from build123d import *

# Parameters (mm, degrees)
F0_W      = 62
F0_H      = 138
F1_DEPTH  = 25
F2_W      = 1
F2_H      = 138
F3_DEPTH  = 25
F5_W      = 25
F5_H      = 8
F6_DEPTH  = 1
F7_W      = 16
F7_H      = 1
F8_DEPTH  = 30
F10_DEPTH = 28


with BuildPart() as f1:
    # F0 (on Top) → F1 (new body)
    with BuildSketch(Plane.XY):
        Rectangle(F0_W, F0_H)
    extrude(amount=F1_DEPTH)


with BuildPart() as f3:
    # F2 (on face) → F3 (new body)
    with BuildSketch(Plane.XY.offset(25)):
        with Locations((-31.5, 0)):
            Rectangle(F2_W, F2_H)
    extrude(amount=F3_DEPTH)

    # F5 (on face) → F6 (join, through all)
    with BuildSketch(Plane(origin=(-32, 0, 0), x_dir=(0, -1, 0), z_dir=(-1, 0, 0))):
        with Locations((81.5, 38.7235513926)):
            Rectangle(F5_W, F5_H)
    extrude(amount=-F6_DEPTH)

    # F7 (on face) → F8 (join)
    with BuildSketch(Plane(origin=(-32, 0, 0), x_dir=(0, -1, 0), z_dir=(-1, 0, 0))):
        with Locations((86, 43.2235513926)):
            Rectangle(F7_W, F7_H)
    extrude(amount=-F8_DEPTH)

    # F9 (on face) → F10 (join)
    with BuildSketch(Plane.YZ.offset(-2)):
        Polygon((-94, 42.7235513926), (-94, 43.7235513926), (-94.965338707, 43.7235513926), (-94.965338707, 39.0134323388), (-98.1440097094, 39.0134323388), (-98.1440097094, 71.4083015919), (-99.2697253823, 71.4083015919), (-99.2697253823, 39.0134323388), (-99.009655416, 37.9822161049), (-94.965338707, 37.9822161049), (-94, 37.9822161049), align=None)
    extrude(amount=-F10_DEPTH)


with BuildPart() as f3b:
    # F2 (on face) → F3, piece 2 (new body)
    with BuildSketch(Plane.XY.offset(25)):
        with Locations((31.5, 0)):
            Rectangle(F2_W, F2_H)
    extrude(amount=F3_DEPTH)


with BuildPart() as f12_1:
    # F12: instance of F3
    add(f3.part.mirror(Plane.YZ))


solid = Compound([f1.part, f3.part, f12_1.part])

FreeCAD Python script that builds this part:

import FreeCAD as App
import Part
import Sketcher
from FreeCAD import Vector


def add_polygon(sketch, points):
    """Adds a closed chain of lines whose ends are joined by coincident constraints."""
    first, n = sketch.GeometryCount, len(points)
    for a, b in zip(points, points[1:] + points[:1]):
        sketch.addGeometry(Part.LineSegment(App.Vector(*a, 0), App.Vector(*b, 0)), False)
    for i in range(n):
        sketch.addConstraint(Sketcher.Constraint("Coincident", first + i, 2, first + (i + 1) % n, 1))

doc = App.newDocument("Part")
body = doc.addObject("PartDesign::Body", "Body")

# Sketch on XY plane
sketch1 = doc.addObject("Sketcher::SketchObject", "Sketch")
body.addObject(sketch1)
sketch1.AttachmentSupport = (doc.XY_Plane, [""])
sketch1.MapMode = "FlatFace"
add_polygon(sketch1, [(-31, 69), (-31, -69), (31, -69), (31, 69)])  # lines 0-3
sketch1.addConstraint([
    Sketcher.Constraint("Vertical", 0),
    Sketcher.Constraint("Horizontal", 1),
    Sketcher.Constraint("Vertical", 2),
    Sketcher.Constraint("Horizontal", 3),
    Sketcher.Constraint("Symmetric", 0, 2, 2, 2, -1, 1),
    Sketcher.Constraint("DistanceX", 1, 1, 1, 2, 62.0),
    Sketcher.Constraint("DistanceY", 0, 2, 0, 1, 138.0),
])
pad1 = doc.addObject("PartDesign::Pad", "Pad")
body.addObject(pad1)
pad1.Profile = sketch1
pad1.Length = 25
body2 = doc.addObject("PartDesign::Body", "Body001")

# Sketch on XY plane
sketch2 = doc.addObject("Sketcher::SketchObject", "Sketch001")
body2.addObject(sketch2)
sketch2.AttachmentSupport = (doc.getObject("XY_Plane001"), [""])
sketch2.MapMode = "FlatFace"
sketch2.AttachmentOffset = App.Placement(Vector(0, 0, 25), App.Rotation())
add_polygon(sketch2, [(-32, 69), (-32, -69), (-31, -69), (-31, 69)])  # lines 0-3
sketch2.addConstraint([
    Sketcher.Constraint("Vertical", 0),
    Sketcher.Constraint("Horizontal", 1),
    Sketcher.Constraint("Vertical", 2),
    Sketcher.Constraint("Horizontal", 3),
    Sketcher.Constraint("DistanceX", 1, 1, 1, 2, 1.0),
    Sketcher.Constraint("DistanceY", 0, 2, 0, 1, 138.0),
    Sketcher.Constraint("DistanceX", 0, 2, -1, 1, 32.0),
    Sketcher.Constraint("DistanceY", 0, 2, -1, 1, 69.0),
])
pad2 = doc.addObject("PartDesign::Pad", "Pad001")
body2.addObject(pad2)
pad2.Profile = sketch2
pad2.Length = 25

# Sketch on YZ plane
sketch3 = doc.addObject("Sketcher::SketchObject", "Sketch002")
body2.addObject(sketch3)
sketch3.AttachmentSupport = (doc.getObject("YZ_Plane001"), [""])
sketch3.MapMode = "FlatFace"
sketch3.AttachmentOffset = App.Placement(Vector(0, 0, -32), App.Rotation())
add_polygon(sketch3, [(-69, 43), (-69, 35), (-94, 35), (-94, 43)])  # lines 0-3
sketch3.addConstraint([
    Sketcher.Constraint("Vertical", 0),
    Sketcher.Constraint("Horizontal", 1),
    Sketcher.Constraint("Vertical", 2),
    Sketcher.Constraint("Horizontal", 3),
    Sketcher.Constraint("DistanceX", 1, 2, 1, 1, 25.0),
    Sketcher.Constraint("DistanceY", 0, 2, 0, 1, 8.0),
    Sketcher.Constraint("DistanceX", 0, 2, -1, 1, 69.0),
    Sketcher.Constraint("DistanceY", -1, 1, 0, 2, 34.723551),
])
pad3 = doc.addObject("PartDesign::Pad", "Pad002")
body2.addObject(pad3)
pad3.Profile = sketch3
pad3.Length = 1

# Sketch on YZ plane
sketch4 = doc.addObject("Sketcher::SketchObject", "Sketch003")
body2.addObject(sketch4)
sketch4.AttachmentSupport = (doc.getObject("YZ_Plane001"), [""])
sketch4.MapMode = "FlatFace"
sketch4.AttachmentOffset = App.Placement(Vector(0, 0, -32), App.Rotation())
add_polygon(sketch4, [(-78, 43.7), (-78, 42.7), (-94, 42.7), (-94, 43.7)])  # lines 0-3
sketch4.addConstraint([
    Sketcher.Constraint("Vertical", 0),
    Sketcher.Constraint("Horizontal", 1),
    Sketcher.Constraint("Vertical", 2),
    Sketcher.Constraint("Horizontal", 3),
    Sketcher.Constraint("DistanceX", 1, 2, 1, 1, 16.0),
    Sketcher.Constraint("DistanceY", 0, 2, 0, 1, 1.0),
    Sketcher.Constraint("DistanceX", 0, 2, -1, 1, 78.0),
    Sketcher.Constraint("DistanceY", -1, 1, 0, 2, 42.723551),
])
pad4 = doc.addObject("PartDesign::Pad", "Pad003")
body2.addObject(pad4)
pad4.Profile = sketch4
pad4.Length = 30

# Sketch on YZ plane
sketch5 = doc.addObject("Sketcher::SketchObject", "Sketch004")
body2.addObject(sketch5)
sketch5.AttachmentSupport = (doc.getObject("YZ_Plane001"), [""])
sketch5.MapMode = "FlatFace"
sketch5.AttachmentOffset = App.Placement(Vector(0, 0, -2), App.Rotation())
add_polygon(sketch5, [(-94, 43.7), (-95, 43.7), (-95, 39), (-98.1, 39), (-98.1, 71.4), (-99.3, 71.4), (-99.3, 39), (-99, 38), (-94, 38)])  # lines 0-8
sketch5.addConstraint([
    Sketcher.Constraint("Horizontal", 0),
    Sketcher.Constraint("Vertical", 1),
    Sketcher.Constraint("Horizontal", 2),
    Sketcher.Constraint("Vertical", 3),
    Sketcher.Constraint("Horizontal", 4),
    Sketcher.Constraint("Vertical", 5),
    Sketcher.Constraint("Horizontal", 7),
    Sketcher.Constraint("Vertical", 8),
    Sketcher.Constraint("Horizontal", 2, 2, 5, 2),
    Sketcher.Constraint("DistanceX", 7, 2, -1, 1, 94.0),
    Sketcher.Constraint("DistanceX", 0, 2, 0, 1, 0.965339),
    Sketcher.Constraint("DistanceX", 2, 2, 2, 1, 3.178671),
    Sketcher.Constraint("DistanceY", 1, 2, 1, 1, 4.710119),
    Sketcher.Constraint("DistanceY", 3, 1, 3, 2, 32.394869),
    Sketcher.Constraint("DistanceY", -1, 1, 3, 2, 71.408302),
    Sketcher.Constraint("DistanceX", 4, 2, 4, 1, 1.125716),
    Sketcher.Constraint("DistanceX", 7, 1, 7, 2, 5.009655),
    Sketcher.Constraint("DistanceY", 8, 1, 8, 2, 5.741335),
])
pad5 = doc.addObject("PartDesign::Pad", "Pad004")
body2.addObject(pad5)
pad5.Profile = sketch5
pad5.Length = 28
pad5.Reversed = True
body3 = doc.addObject("PartDesign::Body", "Body002")

# Sketch on XY plane
sketch6 = doc.addObject("Sketcher::SketchObject", "Sketch005")
body3.addObject(sketch6)
sketch6.AttachmentSupport = (doc.getObject("XY_Plane002"), [""])
sketch6.MapMode = "FlatFace"
sketch6.AttachmentOffset = App.Placement(Vector(0, 0, 25), App.Rotation())
add_polygon(sketch6, [(31, 69), (31, -69), (32, -69), (32, 69)])  # lines 0-3
sketch6.addConstraint([
    Sketcher.Constraint("Vertical", 0),
    Sketcher.Constraint("Horizontal", 1),
    Sketcher.Constraint("Vertical", 2),
    Sketcher.Constraint("Horizontal", 3),
    Sketcher.Constraint("DistanceX", 1, 1, 1, 2, 1.0),
    Sketcher.Constraint("DistanceY", 0, 2, 0, 1, 138.0),
    Sketcher.Constraint("DistanceX", -1, 1, 0, 2, 31.0),
    Sketcher.Constraint("DistanceY", 0, 2, -1, 1, 69.0),
])
pad6 = doc.addObject("PartDesign::Pad", "Pad005")
body3.addObject(pad6)
pad6.Profile = sketch6
pad6.Length = 25
body4 = doc.addObject("PartDesign::Body", "Body003")
doc.recompute()

mirroring = doc.addObject("Part::Mirroring", "Mirroring")
mirroring.Source = body2
mirroring.Base = Vector(0, 0, 0)
mirroring.Normal = Vector(1, 0, 0)
body4.BaseFeature = mirroring
doc.recompute()
body3.Visibility = False
mirroring.Visibility = False

doc.recompute()
